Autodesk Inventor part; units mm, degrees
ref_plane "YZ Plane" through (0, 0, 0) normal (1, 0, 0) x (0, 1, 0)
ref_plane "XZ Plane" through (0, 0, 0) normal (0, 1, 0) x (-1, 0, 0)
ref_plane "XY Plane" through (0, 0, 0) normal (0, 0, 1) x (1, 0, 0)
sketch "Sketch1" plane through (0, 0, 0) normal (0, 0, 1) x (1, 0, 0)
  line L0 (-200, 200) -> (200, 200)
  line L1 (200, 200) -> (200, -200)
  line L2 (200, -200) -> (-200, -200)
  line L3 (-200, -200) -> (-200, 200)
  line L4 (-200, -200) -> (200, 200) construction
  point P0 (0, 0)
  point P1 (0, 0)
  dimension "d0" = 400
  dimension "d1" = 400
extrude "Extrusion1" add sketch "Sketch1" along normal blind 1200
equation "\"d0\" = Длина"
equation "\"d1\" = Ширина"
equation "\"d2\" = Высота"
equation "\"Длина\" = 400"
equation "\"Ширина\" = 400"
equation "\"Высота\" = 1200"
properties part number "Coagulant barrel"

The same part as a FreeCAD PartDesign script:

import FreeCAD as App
import Part
import Sketcher


def add_polygon(sketch, points):
    """Adds a closed chain of lines whose ends are joined by coincident constraints."""
    first, n = sketch.GeometryCount, len(points)
    for a, b in zip(points, points[1:] + points[:1]):
        sketch.addGeometry(Part.LineSegment(App.Vector(*a, 0), App.Vector(*b, 0)), False)
    for i in range(n):
        sketch.addConstraint(Sketcher.Constraint("Coincident", first + i, 2, first + (i + 1) % n, 1))

doc = App.newDocument("Part")
body = doc.addObject("PartDesign::Body", "Body")

# Sketch on XY plane
sketch1 = body.newObject("Sketcher::SketchObject", "Sketch")
sketch1.AttachmentSupport = (doc.getObject("XY_Plane"), [""])
sketch1.MapMode = "FlatFace"
add_polygon(sketch1, [(200, 200), (-200, 200), (-200, -200), (200, -200)])  # lines 0-3
sketch1.addConstraint([
    Sketcher.Constraint("Horizontal", 0),
    Sketcher.Constraint("Vertical", 1),
    Sketcher.Constraint("Horizontal", 2),
    Sketcher.Constraint("Vertical", 3),
    Sketcher.Constraint("Symmetric", 0, 2, 2, 2, -1, 1),
    Sketcher.Constraint("Equal", 2, 1),
    Sketcher.Constraint("DistanceX", 0, 2, 0, 1, 400.0),
])
pad1 = body.newObject("PartDesign::Pad", "Pad")
pad1.Profile = sketch1
pad1.Length = 1200

doc.recompute()
